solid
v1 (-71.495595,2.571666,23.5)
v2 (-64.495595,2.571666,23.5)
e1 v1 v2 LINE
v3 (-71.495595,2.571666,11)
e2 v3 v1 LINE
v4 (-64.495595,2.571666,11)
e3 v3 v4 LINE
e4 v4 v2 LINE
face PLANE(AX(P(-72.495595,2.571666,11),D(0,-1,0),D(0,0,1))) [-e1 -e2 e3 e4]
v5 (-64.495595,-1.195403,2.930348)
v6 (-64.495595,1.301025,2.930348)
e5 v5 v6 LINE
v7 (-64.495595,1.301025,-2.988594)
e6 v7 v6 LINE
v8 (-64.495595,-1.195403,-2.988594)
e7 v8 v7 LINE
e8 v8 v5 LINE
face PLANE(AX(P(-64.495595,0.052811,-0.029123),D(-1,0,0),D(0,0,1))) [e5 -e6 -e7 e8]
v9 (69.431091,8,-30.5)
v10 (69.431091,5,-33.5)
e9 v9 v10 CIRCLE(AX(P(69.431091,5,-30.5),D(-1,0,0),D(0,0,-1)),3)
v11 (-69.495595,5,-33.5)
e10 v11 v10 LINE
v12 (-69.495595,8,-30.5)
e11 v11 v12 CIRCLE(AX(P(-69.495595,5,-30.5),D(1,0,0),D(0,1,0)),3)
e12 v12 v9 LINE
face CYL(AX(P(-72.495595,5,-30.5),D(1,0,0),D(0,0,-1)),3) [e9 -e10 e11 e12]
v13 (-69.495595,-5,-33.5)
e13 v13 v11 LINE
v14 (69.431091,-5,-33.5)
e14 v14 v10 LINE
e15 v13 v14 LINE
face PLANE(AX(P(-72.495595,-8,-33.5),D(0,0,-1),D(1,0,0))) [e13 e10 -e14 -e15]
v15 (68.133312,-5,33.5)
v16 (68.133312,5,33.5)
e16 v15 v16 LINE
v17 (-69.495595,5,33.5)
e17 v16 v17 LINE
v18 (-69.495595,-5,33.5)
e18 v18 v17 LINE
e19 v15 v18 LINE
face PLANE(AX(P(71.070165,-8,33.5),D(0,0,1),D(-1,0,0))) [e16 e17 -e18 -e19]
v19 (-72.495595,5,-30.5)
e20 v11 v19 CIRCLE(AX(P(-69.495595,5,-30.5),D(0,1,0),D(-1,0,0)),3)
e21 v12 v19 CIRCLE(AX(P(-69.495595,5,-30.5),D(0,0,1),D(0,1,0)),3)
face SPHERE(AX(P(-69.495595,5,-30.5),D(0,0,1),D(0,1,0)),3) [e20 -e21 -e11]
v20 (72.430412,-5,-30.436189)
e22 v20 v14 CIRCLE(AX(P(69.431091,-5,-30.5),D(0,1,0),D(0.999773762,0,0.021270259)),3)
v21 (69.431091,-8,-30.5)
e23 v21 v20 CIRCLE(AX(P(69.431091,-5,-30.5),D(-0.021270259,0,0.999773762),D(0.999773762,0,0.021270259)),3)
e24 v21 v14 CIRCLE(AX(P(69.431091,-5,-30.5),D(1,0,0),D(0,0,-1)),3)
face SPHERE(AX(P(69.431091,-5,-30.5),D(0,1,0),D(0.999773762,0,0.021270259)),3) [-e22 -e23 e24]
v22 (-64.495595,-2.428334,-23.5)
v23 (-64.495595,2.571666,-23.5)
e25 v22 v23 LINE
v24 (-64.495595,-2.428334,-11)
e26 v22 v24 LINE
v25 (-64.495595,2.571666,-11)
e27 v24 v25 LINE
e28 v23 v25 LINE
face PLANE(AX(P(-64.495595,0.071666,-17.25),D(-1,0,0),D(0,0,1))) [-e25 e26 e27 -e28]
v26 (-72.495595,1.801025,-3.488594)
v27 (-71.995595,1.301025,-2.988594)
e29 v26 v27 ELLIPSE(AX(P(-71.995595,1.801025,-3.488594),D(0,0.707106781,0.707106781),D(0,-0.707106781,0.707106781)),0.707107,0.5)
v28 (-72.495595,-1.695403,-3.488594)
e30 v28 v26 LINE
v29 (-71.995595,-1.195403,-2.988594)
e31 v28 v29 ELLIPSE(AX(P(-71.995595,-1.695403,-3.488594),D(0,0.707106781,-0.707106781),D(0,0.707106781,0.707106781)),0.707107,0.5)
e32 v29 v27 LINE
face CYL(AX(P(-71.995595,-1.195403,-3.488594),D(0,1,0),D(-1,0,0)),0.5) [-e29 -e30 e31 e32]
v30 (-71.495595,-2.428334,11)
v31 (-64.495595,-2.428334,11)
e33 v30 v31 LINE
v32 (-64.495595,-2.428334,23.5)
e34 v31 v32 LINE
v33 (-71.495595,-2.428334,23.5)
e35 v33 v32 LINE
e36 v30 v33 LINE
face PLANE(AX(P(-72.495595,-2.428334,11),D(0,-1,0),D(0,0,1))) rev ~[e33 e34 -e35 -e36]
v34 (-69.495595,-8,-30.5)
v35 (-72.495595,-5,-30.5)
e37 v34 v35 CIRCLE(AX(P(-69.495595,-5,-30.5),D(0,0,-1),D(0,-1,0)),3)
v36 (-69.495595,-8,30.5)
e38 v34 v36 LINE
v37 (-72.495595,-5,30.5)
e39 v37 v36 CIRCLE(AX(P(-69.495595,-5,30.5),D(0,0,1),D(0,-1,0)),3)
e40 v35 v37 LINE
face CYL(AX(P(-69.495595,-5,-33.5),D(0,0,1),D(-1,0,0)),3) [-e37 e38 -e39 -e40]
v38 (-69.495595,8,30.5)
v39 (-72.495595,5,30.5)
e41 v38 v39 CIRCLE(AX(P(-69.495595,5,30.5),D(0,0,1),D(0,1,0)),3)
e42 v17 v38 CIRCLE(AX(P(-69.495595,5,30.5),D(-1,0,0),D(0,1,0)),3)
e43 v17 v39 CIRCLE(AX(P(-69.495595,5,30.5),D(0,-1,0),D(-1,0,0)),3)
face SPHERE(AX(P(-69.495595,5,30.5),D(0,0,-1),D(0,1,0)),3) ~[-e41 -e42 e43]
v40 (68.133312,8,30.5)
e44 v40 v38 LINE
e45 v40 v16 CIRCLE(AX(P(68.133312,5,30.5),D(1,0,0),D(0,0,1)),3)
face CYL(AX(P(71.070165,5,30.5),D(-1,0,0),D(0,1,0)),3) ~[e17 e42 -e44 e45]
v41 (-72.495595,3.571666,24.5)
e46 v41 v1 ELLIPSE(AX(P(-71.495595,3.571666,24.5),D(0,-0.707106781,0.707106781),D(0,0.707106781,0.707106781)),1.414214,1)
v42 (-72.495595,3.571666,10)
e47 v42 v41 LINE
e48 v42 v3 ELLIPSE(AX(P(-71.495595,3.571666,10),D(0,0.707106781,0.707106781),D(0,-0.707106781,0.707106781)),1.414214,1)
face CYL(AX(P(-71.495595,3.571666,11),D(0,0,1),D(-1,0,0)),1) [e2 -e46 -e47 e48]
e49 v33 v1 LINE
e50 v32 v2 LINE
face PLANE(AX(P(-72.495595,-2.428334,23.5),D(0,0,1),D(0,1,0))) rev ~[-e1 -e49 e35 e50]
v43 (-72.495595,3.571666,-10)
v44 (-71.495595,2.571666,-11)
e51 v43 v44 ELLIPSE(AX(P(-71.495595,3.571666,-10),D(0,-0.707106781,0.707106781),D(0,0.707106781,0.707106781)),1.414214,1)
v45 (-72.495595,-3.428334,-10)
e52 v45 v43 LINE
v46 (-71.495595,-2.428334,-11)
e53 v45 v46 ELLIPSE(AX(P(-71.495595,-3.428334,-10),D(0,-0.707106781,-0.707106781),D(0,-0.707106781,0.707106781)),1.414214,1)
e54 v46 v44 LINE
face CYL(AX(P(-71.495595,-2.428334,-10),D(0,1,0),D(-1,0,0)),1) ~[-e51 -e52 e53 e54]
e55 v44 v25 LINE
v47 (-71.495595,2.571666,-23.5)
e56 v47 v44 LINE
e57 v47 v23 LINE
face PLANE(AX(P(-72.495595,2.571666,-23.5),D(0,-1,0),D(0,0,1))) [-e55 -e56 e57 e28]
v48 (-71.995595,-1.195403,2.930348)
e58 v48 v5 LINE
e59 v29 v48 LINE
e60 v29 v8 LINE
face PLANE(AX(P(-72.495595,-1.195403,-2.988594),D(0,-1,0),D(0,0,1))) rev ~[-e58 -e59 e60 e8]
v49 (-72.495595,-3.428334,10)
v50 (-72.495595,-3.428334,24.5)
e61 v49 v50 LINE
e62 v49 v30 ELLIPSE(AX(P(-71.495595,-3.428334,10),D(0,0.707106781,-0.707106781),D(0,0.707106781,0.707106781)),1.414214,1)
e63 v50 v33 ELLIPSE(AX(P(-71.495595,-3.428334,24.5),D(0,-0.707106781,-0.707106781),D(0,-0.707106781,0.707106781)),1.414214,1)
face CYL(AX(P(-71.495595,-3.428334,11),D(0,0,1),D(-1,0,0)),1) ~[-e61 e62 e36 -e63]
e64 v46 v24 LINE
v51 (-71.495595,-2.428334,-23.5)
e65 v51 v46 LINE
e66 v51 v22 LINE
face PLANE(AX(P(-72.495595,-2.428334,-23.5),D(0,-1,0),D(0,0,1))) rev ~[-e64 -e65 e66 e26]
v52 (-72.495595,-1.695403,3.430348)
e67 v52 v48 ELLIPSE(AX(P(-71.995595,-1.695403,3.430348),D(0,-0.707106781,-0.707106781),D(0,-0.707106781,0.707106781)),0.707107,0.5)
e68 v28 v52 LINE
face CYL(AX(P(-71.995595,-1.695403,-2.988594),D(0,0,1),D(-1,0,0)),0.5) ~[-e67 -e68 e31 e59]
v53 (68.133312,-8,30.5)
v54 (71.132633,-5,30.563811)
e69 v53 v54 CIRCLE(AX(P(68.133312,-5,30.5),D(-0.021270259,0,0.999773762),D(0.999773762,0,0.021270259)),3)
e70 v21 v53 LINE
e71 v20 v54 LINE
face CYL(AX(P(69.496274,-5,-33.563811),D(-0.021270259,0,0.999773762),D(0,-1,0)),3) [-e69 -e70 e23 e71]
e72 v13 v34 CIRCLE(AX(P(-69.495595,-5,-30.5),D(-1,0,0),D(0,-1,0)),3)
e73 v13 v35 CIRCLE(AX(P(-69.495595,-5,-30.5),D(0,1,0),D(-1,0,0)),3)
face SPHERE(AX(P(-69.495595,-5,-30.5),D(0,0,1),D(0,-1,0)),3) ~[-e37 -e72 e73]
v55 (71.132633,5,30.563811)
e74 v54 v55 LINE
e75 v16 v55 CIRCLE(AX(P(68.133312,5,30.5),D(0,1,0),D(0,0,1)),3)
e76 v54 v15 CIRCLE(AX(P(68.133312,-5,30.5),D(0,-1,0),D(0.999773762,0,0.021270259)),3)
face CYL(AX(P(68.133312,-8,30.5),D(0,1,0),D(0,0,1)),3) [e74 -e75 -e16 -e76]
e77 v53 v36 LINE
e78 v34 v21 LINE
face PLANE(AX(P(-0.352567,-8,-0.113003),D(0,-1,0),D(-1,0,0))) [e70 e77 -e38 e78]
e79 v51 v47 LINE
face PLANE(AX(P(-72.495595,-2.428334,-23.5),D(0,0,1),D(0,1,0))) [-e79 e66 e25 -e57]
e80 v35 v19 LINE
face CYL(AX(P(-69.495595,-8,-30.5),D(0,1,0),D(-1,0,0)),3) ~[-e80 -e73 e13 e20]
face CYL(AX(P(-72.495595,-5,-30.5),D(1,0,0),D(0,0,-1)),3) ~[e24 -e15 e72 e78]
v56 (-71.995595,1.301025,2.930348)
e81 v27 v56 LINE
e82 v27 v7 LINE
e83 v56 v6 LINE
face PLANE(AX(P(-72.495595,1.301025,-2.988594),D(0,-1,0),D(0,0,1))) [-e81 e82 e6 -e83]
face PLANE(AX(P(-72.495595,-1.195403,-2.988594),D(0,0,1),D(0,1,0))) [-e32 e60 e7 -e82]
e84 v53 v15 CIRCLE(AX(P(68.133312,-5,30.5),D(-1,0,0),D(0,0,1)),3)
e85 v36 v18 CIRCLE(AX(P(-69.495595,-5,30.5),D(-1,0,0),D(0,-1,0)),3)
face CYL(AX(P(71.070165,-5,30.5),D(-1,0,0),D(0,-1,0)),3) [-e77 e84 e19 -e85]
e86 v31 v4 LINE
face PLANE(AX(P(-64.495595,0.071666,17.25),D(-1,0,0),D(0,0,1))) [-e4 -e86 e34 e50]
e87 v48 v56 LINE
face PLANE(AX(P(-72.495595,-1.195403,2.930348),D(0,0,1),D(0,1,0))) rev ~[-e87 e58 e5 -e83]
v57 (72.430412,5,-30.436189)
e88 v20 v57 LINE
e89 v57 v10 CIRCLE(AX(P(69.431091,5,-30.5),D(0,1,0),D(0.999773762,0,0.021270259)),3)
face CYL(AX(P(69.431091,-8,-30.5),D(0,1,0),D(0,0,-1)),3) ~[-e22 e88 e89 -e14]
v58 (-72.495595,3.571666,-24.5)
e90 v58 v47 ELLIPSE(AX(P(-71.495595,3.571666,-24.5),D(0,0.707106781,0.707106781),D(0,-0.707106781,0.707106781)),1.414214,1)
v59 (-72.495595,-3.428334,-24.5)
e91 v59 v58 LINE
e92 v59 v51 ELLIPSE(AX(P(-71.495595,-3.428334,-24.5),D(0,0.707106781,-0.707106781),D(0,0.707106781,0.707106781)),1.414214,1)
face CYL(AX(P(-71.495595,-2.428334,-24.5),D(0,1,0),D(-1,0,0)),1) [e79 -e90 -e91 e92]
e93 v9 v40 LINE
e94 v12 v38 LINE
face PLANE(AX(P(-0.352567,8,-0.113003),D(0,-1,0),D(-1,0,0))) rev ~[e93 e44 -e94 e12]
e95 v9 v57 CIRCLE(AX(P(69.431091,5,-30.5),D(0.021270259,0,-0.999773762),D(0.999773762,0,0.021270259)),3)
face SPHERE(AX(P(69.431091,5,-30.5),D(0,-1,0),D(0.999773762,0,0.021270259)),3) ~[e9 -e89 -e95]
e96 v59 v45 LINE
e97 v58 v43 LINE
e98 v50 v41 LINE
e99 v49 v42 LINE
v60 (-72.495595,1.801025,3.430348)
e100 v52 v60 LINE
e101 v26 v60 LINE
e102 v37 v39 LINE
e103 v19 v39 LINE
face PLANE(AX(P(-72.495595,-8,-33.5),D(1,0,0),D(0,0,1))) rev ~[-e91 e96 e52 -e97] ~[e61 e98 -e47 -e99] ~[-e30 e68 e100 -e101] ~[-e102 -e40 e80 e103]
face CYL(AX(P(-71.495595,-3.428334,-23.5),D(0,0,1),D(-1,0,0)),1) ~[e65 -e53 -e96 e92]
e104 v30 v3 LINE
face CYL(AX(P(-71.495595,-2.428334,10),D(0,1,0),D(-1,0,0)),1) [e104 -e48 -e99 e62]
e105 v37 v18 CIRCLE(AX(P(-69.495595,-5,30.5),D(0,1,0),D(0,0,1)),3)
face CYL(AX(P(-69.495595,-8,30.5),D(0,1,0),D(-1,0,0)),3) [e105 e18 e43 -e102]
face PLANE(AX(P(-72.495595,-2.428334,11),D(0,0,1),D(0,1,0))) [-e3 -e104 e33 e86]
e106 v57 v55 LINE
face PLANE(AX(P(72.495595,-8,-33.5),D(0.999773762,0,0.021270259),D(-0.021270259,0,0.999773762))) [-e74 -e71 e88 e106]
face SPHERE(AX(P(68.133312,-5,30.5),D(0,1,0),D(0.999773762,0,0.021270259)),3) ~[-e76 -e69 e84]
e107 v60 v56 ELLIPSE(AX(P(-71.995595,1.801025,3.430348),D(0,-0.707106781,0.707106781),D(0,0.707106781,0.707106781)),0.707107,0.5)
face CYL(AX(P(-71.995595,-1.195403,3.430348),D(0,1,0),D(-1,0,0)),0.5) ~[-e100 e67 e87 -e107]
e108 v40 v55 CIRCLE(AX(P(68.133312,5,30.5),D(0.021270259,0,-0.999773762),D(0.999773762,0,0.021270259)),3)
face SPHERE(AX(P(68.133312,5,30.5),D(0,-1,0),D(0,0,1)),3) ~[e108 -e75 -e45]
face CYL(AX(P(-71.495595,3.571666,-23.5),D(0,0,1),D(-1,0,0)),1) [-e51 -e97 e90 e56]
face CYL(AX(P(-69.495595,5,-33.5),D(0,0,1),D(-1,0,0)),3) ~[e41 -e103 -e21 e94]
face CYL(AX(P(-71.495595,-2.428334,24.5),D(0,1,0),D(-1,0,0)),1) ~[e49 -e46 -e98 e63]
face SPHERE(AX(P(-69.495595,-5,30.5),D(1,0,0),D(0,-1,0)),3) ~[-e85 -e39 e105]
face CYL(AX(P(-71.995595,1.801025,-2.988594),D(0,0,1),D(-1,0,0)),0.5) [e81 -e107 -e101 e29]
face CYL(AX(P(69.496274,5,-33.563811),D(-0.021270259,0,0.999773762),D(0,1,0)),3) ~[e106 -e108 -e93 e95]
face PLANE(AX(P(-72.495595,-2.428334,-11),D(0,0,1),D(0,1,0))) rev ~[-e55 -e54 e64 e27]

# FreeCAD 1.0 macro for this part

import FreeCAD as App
import Part
import Sketcher


def edges_at(feature, points):
    """Names of the edges that pass closest to the given points."""
    edges = feature.Shape.Edges
    near = lambda p: min(range(len(edges)), key=lambda i: edges[i].distToShape(Part.Vertex(*p))[0])
    return sorted({f"Edge{near(p) + 1}" for p in points})

doc = App.newDocument("Part")
body = doc.addObject("PartDesign::Body", "Body")

sketch1 = body.newObject("Sketcher::SketchObject", "Sketch")
sketch1.AttachmentSupport = (doc.getObject("XZ_Plane"), [""])
sketch1.MapMode = "FlatFace"
sketch1.addGeometry([
    Part.LineSegment(App.Vector(-72.495595, -33.5, 0), App.Vector(-72.495595, 33.5, 0)),
    Part.LineSegment(App.Vector(-72.495595, 33.5, 0), App.Vector(71.070165, 33.5, 0)),
    Part.LineSegment(App.Vector(71.070165, 33.5, 0), App.Vector(72.495595, -33.5, 0)),
    Part.LineSegment(App.Vector(72.495595, -33.5, 0), App.Vector(-72.495595, -33.5, 0)),
], False)
sketch1.addConstraint([
    Sketcher.Constraint("Coincident", 0, 2, 1, 1),
    Sketcher.Constraint("Coincident", 1, 2, 2, 1),
    Sketcher.Constraint("Coincident", 2, 2, 3, 1),
    Sketcher.Constraint("Coincident", 3, 2, 0, 1),
    Sketcher.Constraint("Vertical", 0),
    Sketcher.Constraint("Horizontal", 1),
    Sketcher.Constraint("Horizontal", 3),
    Sketcher.Constraint("Symmetric", 0, 2, 2, 2, -1, 1),
    Sketcher.Constraint("DistanceY", 0, 1, 0, 2, 67.0),
    Sketcher.Constraint("DistanceX", 1, 1, 1, 2, 143.565761),
    Sketcher.Constraint("DistanceX", 3, 2, 3, 1, 144.991191),
])
pad1 = body.newObject("PartDesign::Pad", "Pad")
pad1.Profile = sketch1
pad1.Type = "TwoLengths"
pad1.Length = 8
pad1.Length2 = 8
pad1.Reversed = True

sketch2 = body.newObject("Sketcher::SketchObject", "Sketch001")
sketch2.AttachmentSupport = (doc.getObject("YZ_Plane"), [""])
sketch2.MapMode = "FlatFace"
sketch2.AttachmentOffset = App.Placement(App.Vector(0, 0, -72.495595), App.Rotation())
sketch2.addGeometry([
    Part.LineSegment(App.Vector(2.571666, -23.5, 0), App.Vector(-2.428334, -23.5, 0)),
    Part.LineSegment(App.Vector(-2.428334, -23.5, 0), App.Vector(-2.428334, -11, 0)),
    Part.LineSegment(App.Vector(-2.428334, -11, 0), App.Vector(2.571666, -11, 0)),
    Part.LineSegment(App.Vector(2.571666, -11, 0), App.Vector(2.571666, -23.5, 0)),
    Part.LineSegment(App.Vector(2.571666, 11, 0), App.Vector(-2.428334, 11, 0)),
    Part.LineSegment(App.Vector(-2.428334, 11, 0), App.Vector(-2.428334, 23.5, 0)),
    Part.LineSegment(App.Vector(-2.428334, 23.5, 0), App.Vector(2.571666, 23.5, 0)),
    Part.LineSegment(App.Vector(2.571666, 23.5, 0), App.Vector(2.571666, 11, 0)),
    Part.LineSegment(App.Vector(1.301025, -2.988594, 0), App.Vector(-1.195403, -2.988594, 0)),
    Part.LineSegment(App.Vector(-1.195403, -2.988594, 0), App.Vector(-1.195403, 2.930348, 0)),
    Part.LineSegment(App.Vector(-1.195403, 2.930348, 0), App.Vector(1.301025, 2.930348, 0)),
    Part.LineSegment(App.Vector(1.301025, 2.930348, 0), App.Vector(1.301025, -2.988594, 0)),
], False)
sketch2.addConstraint([
    Sketcher.Constraint("Coincident", 0, 2, 1, 1),
    Sketcher.Constraint("Coincident", 1, 2, 2, 1),
    Sketcher.Constraint("Coincident", 2, 2, 3, 1),
    Sketcher.Constraint("Coincident", 3, 2, 0, 1),
    Sketcher.Constraint("Coincident", 4, 2, 5, 1),
    Sketcher.Constraint("Coincident", 5, 2, 6, 1),
    Sketcher.Constraint("Coincident", 6, 2, 7, 1),
    Sketcher.Constraint("Coincident", 7, 2, 4, 1),
    Sketcher.Constraint("Coincident", 8, 2, 9, 1),
    Sketcher.Constraint("Coincident", 9, 2, 10, 1),
    Sketcher.Constraint("Coincident", 10, 2, 11, 1),
    Sketcher.Constraint("Coincident", 11, 2, 8, 1),
    Sketcher.Constraint("Horizontal", 0),
    Sketcher.Constraint("Vertical", 1),
    Sketcher.Constraint("Horizontal", 2),
    Sketcher.Constraint("Vertical", 3),
    Sketcher.Constraint("Horizontal", 4),
    Sketcher.Constraint("Vertical", 5),
    Sketcher.Constraint("Horizontal", 6),
    Sketcher.Constraint("Vertical", 7),
    Sketcher.Constraint("Horizontal", 8),
    Sketcher.Constraint("Vertical", 9),
    Sketcher.Constraint("Horizontal", 10),
    Sketcher.Constraint("Vertical", 11),
    Sketcher.Constraint("Symmetric", 1, 2, 4, 2, -1),
    Sketcher.Constraint("Symmetric", 3, 2, 6, 2, -1),
    Sketcher.Constraint("DistanceX", 0, 2, 0, 1, 5.0),
    Sketcher.Constraint("DistanceY", 1, 1, 1, 2, 12.5),
    Sketcher.Constraint("DistanceY", 1, 2, -1, 1, 11.0),
    Sketcher.Constraint("DistanceY", 9, 1, 9, 2, 5.918941),
    Sketcher.Constraint("DistanceX", 8, 2, 8, 1, 2.496428),
    Sketcher.Constraint("DistanceX", 1, 2, 8, 2, 1.23293),
    Sketcher.Constraint("DistanceX", 0, 2, -1, 1, 2.428334),
    Sketcher.Constraint("DistanceY", 8, 2, -1, 1, 2.988594),
])
pocket1 = body.newObject("PartDesign::Pocket", "Pocket")
pocket1.Profile = sketch2
pocket1.Length = 8
pocket1.Reversed = True
doc.recompute()

fillet = body.newObject("PartDesign::Fillet", "Fillet")
fillet.Base = (pocket1, edges_at(pocket1, [
    (71.783, -8, 0),
    (-72.496, 8, 0),
    (-0.713, 8, 33.5),
    (71.783, 8, 0),
    (0, 8, -33.5),
    (-0.713, -8, 33.5),
    (-72.496, -8, 0),
    (0, -8, -33.5),
    (-72.496, 0, 33.5),
    (71.07, 0, 33.5),
    (72.496, 0, -33.5),
    (-72.496, 0, -33.5),
]))
fillet.Radius = 3
doc.recompute()

fillet2 = body.newObject("PartDesign::Fillet", "Fillet001")
fillet2.Base = (fillet, edges_at(fillet, [
    (-72.496, -2.428, 17.25),
    (-72.496, 0.072, 23.5),
    (-72.496, 2.572, 17.25),
    (-72.496, 0.072, 11),
    (-72.496, 2.572, -17.25),
    (-72.496, 0.072, -23.5),
    (-72.496, -2.428, -17.25),
    (-72.496, 0.072, -11),
]))
fillet2.Radius = 1
doc.recompute()

fillet3 = body.newObject("PartDesign::Fillet", "Fillet002")
fillet3.Base = (fillet2, edges_at(fillet2, [
    (-72.496, -1.195, -0.029),
    (-72.496, 0.053, 2.93),
    (-72.496, 1.301, -0.029),
    (-72.496, 0.053, -2.989),
]))
fillet3.Radius = 0.5

doc.recompute()
